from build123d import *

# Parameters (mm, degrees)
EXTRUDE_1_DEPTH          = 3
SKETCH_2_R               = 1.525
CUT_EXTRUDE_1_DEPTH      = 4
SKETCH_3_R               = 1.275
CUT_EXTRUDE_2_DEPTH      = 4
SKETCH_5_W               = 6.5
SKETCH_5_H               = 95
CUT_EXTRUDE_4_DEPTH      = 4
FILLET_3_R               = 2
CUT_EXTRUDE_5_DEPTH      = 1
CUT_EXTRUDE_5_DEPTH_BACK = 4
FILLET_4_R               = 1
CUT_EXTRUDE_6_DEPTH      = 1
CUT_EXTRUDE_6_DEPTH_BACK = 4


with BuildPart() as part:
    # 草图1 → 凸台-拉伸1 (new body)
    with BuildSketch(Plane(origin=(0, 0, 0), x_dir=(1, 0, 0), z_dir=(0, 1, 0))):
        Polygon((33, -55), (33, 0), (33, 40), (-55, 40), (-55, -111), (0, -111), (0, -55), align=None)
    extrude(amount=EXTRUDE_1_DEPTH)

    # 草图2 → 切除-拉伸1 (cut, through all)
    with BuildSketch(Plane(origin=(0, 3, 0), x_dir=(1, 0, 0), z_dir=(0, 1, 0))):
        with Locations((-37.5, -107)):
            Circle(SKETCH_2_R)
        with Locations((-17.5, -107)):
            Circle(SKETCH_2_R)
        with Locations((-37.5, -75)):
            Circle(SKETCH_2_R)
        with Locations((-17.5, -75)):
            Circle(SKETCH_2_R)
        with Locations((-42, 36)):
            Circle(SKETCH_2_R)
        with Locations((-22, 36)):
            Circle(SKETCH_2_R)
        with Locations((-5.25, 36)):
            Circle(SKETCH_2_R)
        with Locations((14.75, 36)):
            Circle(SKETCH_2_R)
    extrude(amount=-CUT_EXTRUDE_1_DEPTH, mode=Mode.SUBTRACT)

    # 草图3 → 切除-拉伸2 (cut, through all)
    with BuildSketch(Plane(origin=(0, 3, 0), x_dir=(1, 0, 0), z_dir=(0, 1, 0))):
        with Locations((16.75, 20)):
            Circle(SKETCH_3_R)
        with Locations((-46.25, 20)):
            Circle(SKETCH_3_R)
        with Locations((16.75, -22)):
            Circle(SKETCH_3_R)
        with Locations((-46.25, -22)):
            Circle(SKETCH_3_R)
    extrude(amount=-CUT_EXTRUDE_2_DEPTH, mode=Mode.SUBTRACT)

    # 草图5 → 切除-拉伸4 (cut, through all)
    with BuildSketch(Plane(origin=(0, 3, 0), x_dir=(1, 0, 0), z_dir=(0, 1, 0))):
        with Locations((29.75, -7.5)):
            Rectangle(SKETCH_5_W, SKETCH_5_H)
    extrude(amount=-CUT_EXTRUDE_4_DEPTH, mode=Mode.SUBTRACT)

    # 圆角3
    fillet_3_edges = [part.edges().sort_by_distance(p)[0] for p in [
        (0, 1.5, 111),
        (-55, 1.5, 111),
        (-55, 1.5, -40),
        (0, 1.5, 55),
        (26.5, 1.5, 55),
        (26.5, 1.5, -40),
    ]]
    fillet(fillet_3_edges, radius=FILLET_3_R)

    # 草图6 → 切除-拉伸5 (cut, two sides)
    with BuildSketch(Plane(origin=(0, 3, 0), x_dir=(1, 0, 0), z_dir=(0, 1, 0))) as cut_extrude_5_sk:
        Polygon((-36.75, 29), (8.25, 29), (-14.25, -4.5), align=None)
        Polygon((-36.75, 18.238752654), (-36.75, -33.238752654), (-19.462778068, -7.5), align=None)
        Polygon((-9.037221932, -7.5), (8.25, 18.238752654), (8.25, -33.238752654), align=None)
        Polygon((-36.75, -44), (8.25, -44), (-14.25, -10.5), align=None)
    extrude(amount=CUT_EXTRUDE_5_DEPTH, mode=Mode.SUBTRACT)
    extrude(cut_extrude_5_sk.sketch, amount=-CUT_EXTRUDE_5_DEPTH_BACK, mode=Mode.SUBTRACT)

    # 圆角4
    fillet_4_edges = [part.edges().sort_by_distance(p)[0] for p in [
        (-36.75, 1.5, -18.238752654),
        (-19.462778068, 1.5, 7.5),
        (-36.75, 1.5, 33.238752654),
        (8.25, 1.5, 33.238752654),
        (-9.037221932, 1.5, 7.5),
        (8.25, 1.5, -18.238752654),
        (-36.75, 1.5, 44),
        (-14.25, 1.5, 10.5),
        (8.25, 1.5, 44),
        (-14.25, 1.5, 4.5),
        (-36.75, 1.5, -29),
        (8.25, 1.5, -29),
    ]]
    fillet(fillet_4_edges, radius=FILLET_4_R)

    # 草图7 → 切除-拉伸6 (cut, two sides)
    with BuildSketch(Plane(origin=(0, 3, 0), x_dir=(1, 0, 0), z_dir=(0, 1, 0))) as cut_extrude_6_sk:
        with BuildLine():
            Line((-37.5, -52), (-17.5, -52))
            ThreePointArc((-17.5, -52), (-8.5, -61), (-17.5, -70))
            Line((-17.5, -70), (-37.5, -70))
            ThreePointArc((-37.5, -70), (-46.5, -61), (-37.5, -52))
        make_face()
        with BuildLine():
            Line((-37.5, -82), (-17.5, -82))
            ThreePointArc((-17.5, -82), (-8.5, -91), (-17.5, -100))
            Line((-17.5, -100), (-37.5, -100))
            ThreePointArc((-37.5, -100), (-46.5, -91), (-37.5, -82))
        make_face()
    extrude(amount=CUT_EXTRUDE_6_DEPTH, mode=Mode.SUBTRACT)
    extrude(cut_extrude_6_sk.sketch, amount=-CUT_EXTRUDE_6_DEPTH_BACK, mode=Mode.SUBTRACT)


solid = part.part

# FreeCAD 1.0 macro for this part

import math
import FreeCAD as App
import Part
import Sketcher


def edges_at(feature, points):
    """Names of the edges that pass closest to the given points."""
    edges = feature.Shape.Edges
    near = lambda p: min(range(len(edges)), key=lambda i: edges[i].distToShape(Part.Vertex(*p))[0])
    return sorted({f"Edge{near(p) + 1}" for p in points})

doc = App.newDocument("Part")
body = doc.addObject("PartDesign::Body", "Body")

# Sketch on XZ plane
sketch1 = body.newObject("Sketcher::SketchObject", "Sketch")
sketch1.AttachmentSupport = (doc.getObject("XZ_Plane"), [""])
sketch1.MapMode = "FlatFace"
sketch1.addGeometry([
    Part.LineSegment(App.Vector(33, 55, 0), App.Vector(33, -40, 0)),  # 0
    Part.LineSegment(App.Vector(33, -40, 0), App.Vector(-55, -40, 0)),  # 1
    Part.LineSegment(App.Vector(-55, -40, 0), App.Vector(-55, 111, 0)),  # 2
    Part.LineSegment(App.Vector(-55, 111, 0), App.Vector(0, 111, 0)),  # 3
    Part.LineSegment(App.Vector(0, 111, 0), App.Vector(0, 55, 0)),  # 4
    Part.LineSegment(App.Vector(0, 55, 0), App.Vector(33, 55, 0)),  # 5
], False)
sketch1.addConstraint([
    Sketcher.Constraint("Coincident", 0, 2, 1, 1),
    Sketcher.Constraint("Coincident", 1, 2, 2, 1),
    Sketcher.Constraint("Coincident", 2, 2, 3, 1),
    Sketcher.Constraint("Coincident", 3, 2, 4, 1),
    Sketcher.Constraint("Coincident", 4, 2, 5, 1),
    Sketcher.Constraint("Coincident", 5, 2, 0, 1),
    Sketcher.Constraint("Vertical", 0),
    Sketcher.Constraint("Horizontal", 1),
    Sketcher.Constraint("Vertical", 2),
    Sketcher.Constraint("Horizontal", 3),
    Sketcher.Constraint("Vertical", 4),
    Sketcher.Constraint("Horizontal", 5),
    Sketcher.Constraint("PointOnObject", 3, 2, -2),
    Sketcher.Constraint("DistanceX", 1, 2, 1, 1, 88.0),
    Sketcher.Constraint("DistanceX", 3, 1, 3, 2, 55.0),
    Sketcher.Constraint("DistanceY", 0, 2, 0, 1, 95.0),
    Sketcher.Constraint("DistanceY", 2, 1, 2, 2, 151.0),
    Sketcher.Constraint("DistanceY", 0, 2, -1, 1, 40.0),
])
pad1 = body.newObject("PartDesign::Pad", "Pad")
pad1.Profile = sketch1
pad1.Length = 3
pad1.Reversed = True

# Sketch on XZ plane
sketch2 = body.newObject("Sketcher::SketchObject", "Sketch001")
sketch2.AttachmentSupport = (doc.getObject("XZ_Plane"), [""])
sketch2.MapMode = "FlatFace"
sketch2.AttachmentOffset = App.Placement(App.Vector(0, 0, -3), App.Rotation())
sketch2.addGeometry([
    Part.Circle(App.Vector(-37.5, 107, 0), App.Vector(0, 0, 1), 1.5),  # 0
    Part.Circle(App.Vector(-17.5, 107, 0), App.Vector(0, 0, 1), 1.5),  # 1
    Part.Circle(App.Vector(-37.5, 75, 0), App.Vector(0, 0, 1), 1.5),  # 2
    Part.Circle(App.Vector(-17.5, 75, 0), App.Vector(0, 0, 1), 1.5),  # 3
    Part.Circle(App.Vector(-42, -36, 0), App.Vector(0, 0, 1), 1.5),  # 4
    Part.Circle(App.Vector(-22, -36, 0), App.Vector(0, 0, 1), 1.5),  # 5
    Part.Circle(App.Vector(-5.2, -36, 0), App.Vector(0, 0, 1), 1.5),  # 6
    Part.Circle(App.Vector(14.8, -36, 0), App.Vector(0, 0, 1), 1.5),  # 7
], False)
sketch2.addConstraint([
    Sketcher.Constraint("Equal", 0, 1),
    Sketcher.Constraint("Equal", 1, 2),
    Sketcher.Constraint("Equal", 2, 3),
    Sketcher.Constraint("Equal", 3, 4),
    Sketcher.Constraint("Equal", 4, 5),
    Sketcher.Constraint("Equal", 5, 6),
    Sketcher.Constraint("Equal", 6, 7),
    Sketcher.Constraint("Horizontal", 0, 3, 1, 3),
    Sketcher.Constraint("Horizontal", 2, 3, 3, 3),
    Sketcher.Constraint("Horizontal", 4, 3, 5, 3),
    Sketcher.Constraint("Horizontal", 5, 3, 6, 3),
    Sketcher.Constraint("Horizontal", 6, 3, 7, 3),
    Sketcher.Constraint("Vertical", 0, 3, 2, 3),
    Sketcher.Constraint("Vertical", 1, 3, 3, 3),
    Sketcher.Constraint("Diameter", 0, 3.05),
    Sketcher.Constraint("DistanceY", -1, 1, 0, 3, 107.0),
    Sketcher.Constraint("DistanceY", -1, 1, 2, 3, 75.0),
    Sketcher.Constraint("DistanceX", 4, 3, -1, 1, 42.0),
    Sketcher.Constraint("DistanceY", 4, 3, -1, 1, 36.0),
    Sketcher.Constraint("DistanceX", 5, 3, -1, 1, 22.0),
    Sketcher.Constraint("DistanceX", 0, 3, 1, 3, 20.0),
    Sketcher.Constraint("DistanceX", 6, 3, 7, 3, 20.0),
    Sketcher.Constraint("DistanceX", 0, 3, -1, 1, 37.5),
    Sketcher.Constraint("DistanceX", 6, 3, -1, 1, 5.25),
])
pocket1 = body.newObject("PartDesign::Pocket", "Pocket")
pocket1.Profile = sketch2
pocket1.Type = "ThroughAll"
pocket1.Reversed = True

# Sketch on XZ plane
sketch3 = body.newObject("Sketcher::SketchObject", "Sketch002")
sketch3.AttachmentSupport = (doc.getObject("XZ_Plane"), [""])
sketch3.MapMode = "FlatFace"
sketch3.AttachmentOffset = App.Placement(App.Vector(0, 0, -3), App.Rotation())
sketch3.addGeometry([
    Part.Circle(App.Vector(16.8, -20, 0), App.Vector(0, 0, 1), 1.3),
    Part.Circle(App.Vector(-46.2, -20, 0), App.Vector(0, 0, 1), 1.3),
    Part.Circle(App.Vector(16.8, 22, 0), App.Vector(0, 0, 1), 1.3),
    Part.Circle(App.Vector(-46.2, 22, 0), App.Vector(0, 0, 1), 1.3),
], False)
sketch3.addConstraint([
    Sketcher.Constraint("Equal", 0, 1),
    Sketcher.Constraint("Equal", 1, 2),
    Sketcher.Constraint("Equal", 2, 3),
    Sketcher.Constraint("Horizontal", 0, 3, 1, 3),
    Sketcher.Constraint("Horizontal", 2, 3, 3, 3),
    Sketcher.Constraint("Vertical", 0, 3, 2, 3),
    Sketcher.Constraint("Vertical", 1, 3, 3, 3),
    Sketcher.Constraint("Diameter", 0, 2.55),
    Sketcher.Constraint("DistanceY", 0, 3, -1, 1, 20.0),
    Sketcher.Constraint("DistanceY", -1, 1, 2, 3, 22.0),
    Sketcher.Constraint("DistanceX", 1, 3, 0, 3, 63.0),
    Sketcher.Constraint("DistanceX", -1, 1, 0, 3, 16.75),
])
pocket2 = body.newObject("PartDesign::Pocket", "Pocket001")
pocket2.Profile = sketch3
pocket2.Type = "ThroughAll"
pocket2.Reversed = True

# Sketch on XZ plane
sketch4 = body.newObject("Sketcher::SketchObject", "Sketch003")
sketch4.AttachmentSupport = (doc.getObject("XZ_Plane"), [""])
sketch4.MapMode = "FlatFace"
sketch4.AttachmentOffset = App.Placement(App.Vector(0, 0, -3), App.Rotation())
sketch4.addGeometry([
    Part.LineSegment(App.Vector(26, -40, 0), App.Vector(26, 55, 0)),
    Part.LineSegment(App.Vector(26, 55, 0), App.Vector(33, 55, 0)),
    Part.LineSegment(App.Vector(33, 55, 0), App.Vector(33, -40, 0)),
    Part.LineSegment(App.Vector(33, -40, 0), App.Vector(26, -40, 0)),
], False)
sketch4.addConstraint([
    Sketcher.Constraint("Coincident", 0, 2, 1, 1),
    Sketcher.Constraint("Coincident", 1, 2, 2, 1),
    Sketcher.Constraint("Coincident", 2, 2, 3, 1),
    Sketcher.Constraint("Coincident", 3, 2, 0, 1),
    Sketcher.Constraint("Vertical", 0),
    Sketcher.Constraint("Horizontal", 1),
    Sketcher.Constraint("Vertical", 2),
    Sketcher.Constraint("Horizontal", 3),
    Sketcher.Constraint("DistanceY", 0, 1, 0, 2, 95.0),
    Sketcher.Constraint("DistanceX", 1, 1, 1, 2, 6.5),
    Sketcher.Constraint("DistanceY", -1, 1, 0, 2, 55.0),
    Sketcher.Constraint("DistanceX", -1, 1, 1, 2, 33.0),
])
pocket3 = body.newObject("PartDesign::Pocket", "Pocket002")
pocket3.Profile = sketch4
pocket3.Type = "ThroughAll"
pocket3.Reversed = True
doc.recompute()

fillet = body.newObject("PartDesign::Fillet", "Fillet")
fillet.Base = (pocket3, edges_at(pocket3, [
    (0, 1.5, 111),
    (-55, 1.5, 111),
    (-55, 1.5, -40),
    (0, 1.5, 55),
    (26.5, 1.5, 55),
    (26.5, 1.5, -40),
]))
fillet.Radius = 2

# Sketch on XZ plane
sketch5 = body.newObject("Sketcher::SketchObject", "Sketch004")
sketch5.AttachmentSupport = (doc.getObject("XZ_Plane"), [""])
sketch5.MapMode = "FlatFace"
sketch5.AttachmentOffset = App.Placement(App.Vector(0, 0, -3), App.Rotation())
sketch5.addGeometry([
    Part.LineSegment(App.Vector(8, -29, 0), App.Vector(-37, -29, 0)),  # 0
    Part.LineSegment(App.Vector(-37, -29, 0), App.Vector(-14, 4, 0)),  # 1
    Part.LineSegment(App.Vector(-14, 4, 0), App.Vector(8, -29, 0)),  # 2
    Part.LineSegment(App.Vector(-37, -18, 0), App.Vector(-37, 33, 0)),  # 3
    Part.LineSegment(App.Vector(-37, 33, 0), App.Vector(-19, 8, 0)),  # 4
    Part.LineSegment(App.Vector(-19, 8, 0), App.Vector(-37, -18, 0)),  # 5
    Part.LineSegment(App.Vector(8, -18, 0), App.Vector(-9, 8, 0)),  # 6
    Part.LineSegment(App.Vector(-9, 8, 0), App.Vector(8, 33, 0)),  # 7
    Part.LineSegment(App.Vector(8, 33, 0), App.Vector(8, -18, 0)),  # 8
    Part.LineSegment(App.Vector(-37, 44, 0), App.Vector(8, 44, 0)),  # 9
    Part.LineSegment(App.Vector(8, 44, 0), App.Vector(-14, 10, 0)),  # 10
    Part.LineSegment(App.Vector(-14, 10, 0), App.Vector(-37, 44, 0)),  # 11
], False)
sketch5.addConstraint([
    Sketcher.Constraint("Coincident", 0, 2, 1, 1),
    Sketcher.Constraint("Coincident", 1, 2, 2, 1),
    Sketcher.Constraint("Coincident", 2, 2, 0, 1),
    Sketcher.Constraint("Coincident", 3, 2, 4, 1),
    Sketcher.Constraint("Coincident", 4, 2, 5, 1),
    Sketcher.Constraint("Coincident", 5, 2, 3, 1),
    Sketcher.Constraint("Coincident", 6, 2, 7, 1),
    Sketcher.Constraint("Coincident", 7, 2, 8, 1),
    Sketcher.Constraint("Coincident", 8, 2, 6, 1),
    Sketcher.Constraint("Coincident", 9, 2, 10, 1),
    Sketcher.Constraint("Coincident", 10, 2, 11, 1),
    Sketcher.Constraint("Coincident", 11, 2, 9, 1),
    Sketcher.Constraint("Horizontal", 0),
    Sketcher.Constraint("Vertical", 3),
    Sketcher.Constraint("Vertical", 8),
    Sketcher.Constraint("Horizontal", 9),
    Sketcher.Constraint("Parallel", 2, 4),
    Sketcher.Constraint("Parallel", 1, 5),
    Sketcher.Constraint("Parallel", 4, 6),
    Sketcher.Constraint("Parallel", 5, 7),
    Sketcher.Constraint("Parallel", 7, 10),
    Sketcher.Constraint("Parallel", 6, 11),
    Sketcher.Constraint("Horizontal", 4, 2, 6, 2),
    Sketcher.Constraint("Horizontal", 3, 2, 7, 2),
    Sketcher.Constraint("Horizontal", 5, 2, 8, 2),
    Sketcher.Constraint("Vertical", 0, 2, 3, 2),
    Sketcher.Constraint("Vertical", 2, 2, 7, 2),
    Sketcher.Constraint("Vertical", 8, 2, 9, 2),
    Sketcher.Constraint("Vertical", 1, 2, 10, 2),
    Sketcher.Constraint("DistanceX", 0, 2, 0, 1, 45.0),
    Sketcher.Constraint("DistanceY", 0, 2, -1, 1, 29.0),
    Sketcher.Constraint("DistanceY", -1, 1, 9, 2, 44.0),
    Sketcher.Constraint("DistanceY", 1, 2, 4, 2, 3.0),
    Sketcher.Constraint("DistanceY", 1, 2, 10, 2, 6.0),
    Sketcher.Constraint("DistanceX", 0, 2, -1, 1, 36.75),
    Sketcher.Constraint("DistanceY", 3, 1, 3, 2, 51.477505),
])
pocket4 = body.newObject("PartDesign::Pocket", "Pocket003")
pocket4.Profile = sketch5
pocket4.Type = "ThroughAll"
pocket4.Midplane = True
doc.recompute()

fillet2 = body.newObject("PartDesign::Fillet", "Fillet001")
fillet2.Base = (pocket4, edges_at(pocket4, [
    (-36.75, 1.5, -18.239),
    (-19.463, 1.5, 7.5),
    (-36.75, 1.5, 33.239),
    (8.25, 1.5, 33.239),
    (-9.037, 1.5, 7.5),
    (8.25, 1.5, -18.239),
    (-36.75, 1.5, 44),
    (-14.25, 1.5, 10.5),
    (8.25, 1.5, 44),
    (-14.25, 1.5, 4.5),
    (-36.75, 1.5, -29),
    (8.25, 1.5, -29),
]))
fillet2.Radius = 1

# Sketch on XZ plane
sketch6 = body.newObject("Sketcher::SketchObject", "Sketch005")
sketch6.AttachmentSupport = (doc.getObject("XZ_Plane"), [""])
sketch6.MapMode = "FlatFace"
sketch6.AttachmentOffset = App.Placement(App.Vector(0, 0, -3), App.Rotation())
sketch6.addGeometry([
    Part.LineSegment(App.Vector(-18, 52, 0), App.Vector(-38, 52, 0)),  # 0
    Part.ArcOfCircle(Part.Circle(App.Vector(-38, 61, 0), App.Vector(0, 0, 1), 9), math.radians(90), math.radians(270)),  # 1
    Part.LineSegment(App.Vector(-38, 70, 0), App.Vector(-18, 70, 0)),  # 2
    Part.ArcOfCircle(Part.Circle(App.Vector(-18, 61, 0), App.Vector(0, 0, 1), 9), math.radians(-90), math.radians(90)),  # 3
    Part.LineSegment(App.Vector(-18, 82, 0), App.Vector(-38, 82, 0)),  # 4
    Part.ArcOfCircle(Part.Circle(App.Vector(-38, 91, 0), App.Vector(0, 0, 1), 9), math.radians(90), math.radians(270)),  # 5
    Part.LineSegment(App.Vector(-38, 100, 0), App.Vector(-18, 100, 0)),  # 6
    Part.ArcOfCircle(Part.Circle(App.Vector(-18, 91, 0), App.Vector(0, 0, 1), 9), math.radians(-90), math.radians(90)),  # 7
], False)
sketch6.addConstraint([
    Sketcher.Constraint("Tangent", 0, 2, 1, 2),
    Sketcher.Constraint("Tangent", 1, 1, 2, 1),
    Sketcher.Constraint("Tangent", 2, 2, 3, 2),
    Sketcher.Constraint("Tangent", 3, 1, 0, 1),
    Sketcher.Constraint("Tangent", 4, 2, 5, 2),
    Sketcher.Constraint("Tangent", 5, 1, 6, 1),
    Sketcher.Constraint("Tangent", 6, 2, 7, 2),
    Sketcher.Constraint("Tangent", 7, 1, 4, 1),
    Sketcher.Constraint("Horizontal", 0),
    Sketcher.Constraint("Horizontal", 2),
    Sketcher.Constraint("Horizontal", 4),
    Sketcher.Constraint("Horizontal", 6),
    Sketcher.Constraint("Equal", 3, 5),
    Sketcher.Constraint("Vertical", 1, 3, 5, 3),
    Sketcher.Constraint("Vertical", 3, 3, 7, 3),
    Sketcher.Constraint("Radius", 1, 9.0),
    Sketcher.Constraint("DistanceX", 0, 2, 0, 1, 20.0),
    Sketcher.Constraint("DistanceY", -1, 1, 1, 3, 61.0),
    Sketcher.Constraint("DistanceY", -1, 1, 5, 3, 91.0),
    Sketcher.Constraint("DistanceX", 1, 3, -1, 1, 37.5),
])
pocket5 = body.newObject("PartDesign::Pocket", "Pocket004")
pocket5.Profile = sketch6
pocket5.Type = "ThroughAll"
pocket5.Midplane = True

doc.recompute()
